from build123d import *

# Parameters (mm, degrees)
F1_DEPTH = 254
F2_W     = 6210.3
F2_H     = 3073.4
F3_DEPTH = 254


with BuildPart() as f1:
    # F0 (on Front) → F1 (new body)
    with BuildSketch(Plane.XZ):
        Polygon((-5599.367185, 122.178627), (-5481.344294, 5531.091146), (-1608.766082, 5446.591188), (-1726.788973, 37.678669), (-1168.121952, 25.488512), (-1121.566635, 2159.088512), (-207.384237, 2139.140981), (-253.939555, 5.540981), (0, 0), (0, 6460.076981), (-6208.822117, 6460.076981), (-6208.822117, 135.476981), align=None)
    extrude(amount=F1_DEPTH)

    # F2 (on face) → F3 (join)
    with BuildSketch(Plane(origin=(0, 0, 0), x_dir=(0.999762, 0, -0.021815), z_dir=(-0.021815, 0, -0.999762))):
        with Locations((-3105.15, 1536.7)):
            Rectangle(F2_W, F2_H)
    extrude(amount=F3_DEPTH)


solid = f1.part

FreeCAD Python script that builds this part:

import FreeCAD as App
import Part
import Sketcher
Q = App.Units.Quantity


def add_polygon(sketch, points):
    """Adds a closed chain of lines whose ends are joined by coincident constraints."""
    first, n = sketch.GeometryCount, len(points)
    for a, b in zip(points, points[1:] + points[:1]):
        sketch.addGeometry(Part.LineSegment(App.Vector(*a, 0), App.Vector(*b, 0)), False)
    for i in range(n):
        sketch.addConstraint(Sketcher.Constraint("Coincident", first + i, 2, first + (i + 1) % n, 1))

doc = App.newDocument("Part")
params = doc.addObject("Spreadsheet::Sheet", "Params")
for row, (alias, value) in enumerate([
    ("sketch1_height", "249 in"),
    ("sketch1_length", "213 in"),
    ("sketch1_length2", "22 in"),
    ("sketch1_length3", "36 in"),
    ("sketch1_length4", "10 in"),
    ("pad1_length", "10 in"),
    ("pad2_length", "10 in"),
], start=1):
    params.set(f"A{row}", alias)
    params.set(f"B{row}", "=" + value)
    params.setAlias(f"B{row}", alias)

body = doc.addObject("PartDesign::Body", "Body")

# Sketch on XZ plane
sketch1 = doc.addObject("Sketcher::SketchObject", "Sketch")
body.addObject(sketch1)
sketch1.AttachmentSupport = (doc.XZ_Plane, [""])
sketch1.MapMode = "FlatFace"
add_polygon(sketch1, [(-5599.367185, 122.178627), (-5481.344294, 5531.091146), (-1608.766082, 5446.591188), (-1726.788973, 37.678669), (-1168.121952, 25.488512), (-1121.566635, 2159.088512), (-207.384237, 2139.140981), (-253.939555, 5.540981), (0, 0), (0, 6460.076981), (-6208.822117, 6460.076981), (-6208.822117, 135.476981)])  # lines 0-11
sketch1.addConstraint(Sketcher.Constraint("Vertical", 8))
sketch1.addConstraint(Sketcher.Constraint("Horizontal", 9))
sketch1.addConstraint(Sketcher.Constraint("Vertical", 10))
sketch1.addConstraint(Sketcher.Constraint("Coincident", 7, 2, -1, 1))
sketch1.addConstraint(Sketcher.Constraint("Perpendicular", 0, 1))
sketch1.addConstraint(Sketcher.Constraint("Perpendicular", 1, 2))
sketch1.addConstraint(Sketcher.Constraint("Perpendicular", 2, 3))
sketch1.addConstraint(Sketcher.Constraint("Perpendicular", 3, 4))
sketch1.addConstraint(Sketcher.Constraint("Perpendicular", 4, 5))
sketch1.addConstraint(Sketcher.Constraint("Perpendicular", 5, 6))
sketch1.addConstraint(Sketcher.Constraint("Perpendicular", 6, 7))
sketch1.addConstraint(Sketcher.Constraint("Parallel", 7, 11))
sketch1.addConstraint(Sketcher.Constraint("Equal", 0, 2))
sketch1.addConstraint(Sketcher.Constraint("Equal", 4, 6))
sketch1.addConstraint(Sketcher.Constraint("DistanceY", 10, 2, 10, 1, Q("249 in")))
sketch1.addConstraint(Sketcher.Constraint("Distance", 0, Q("213 in")))
sketch1.addConstraint(Sketcher.Constraint("Distance", 3, Q("22 in")))
sketch1.addConstraint(Sketcher.Constraint("Distance", 5, Q("36 in")))
sketch1.addConstraint(Sketcher.Constraint("Distance", 7, Q("10 in")))
sketch1.addConstraint(Sketcher.Constraint("Distance", 11, Q("24 in")))
sketch1.addConstraint(Sketcher.Constraint("DistanceY", 3, 2, 4, 2, Q("84 in")))
sketch1.addConstraint(Sketcher.Constraint("Distance", 1, Q("152.5 in")))
sketch1.addConstraint(Sketcher.Constraint("Angle", 0, Q("88.75 deg")))
sketch1.setExpression("Constraints[26]", "Params.sketch1_height")
sketch1.setExpression("Constraints[27]", "Params.sketch1_length")
sketch1.setExpression("Constraints[28]", "Params.sketch1_length2")
sketch1.setExpression("Constraints[29]", "Params.sketch1_length3")
sketch1.setExpression("Constraints[30]", "Params.sketch1_length4")
pad1 = doc.addObject("PartDesign::Pad", "Pad")
body.addObject(pad1)
pad1.Profile = sketch1
pad1.setExpression("Length", "Params.pad1_length")

# Sketch on an angled plane
sketch2 = doc.addObject("Sketcher::SketchObject", "Sketch001")
body.addObject(sketch2)
sketch2.Placement = App.Placement(App.Vector(0, 0, 0), App.Rotation(App.Vector(0.999762025, 0, -0.021815001), App.Vector(0, -1.000000001, 0), App.Vector(-0.021815001, 0, -0.999762025), "ZXY"))
add_polygon(sketch2, [(-6210.300006, 3073.400006), (-6210.300006, 0), (0, 0), (0, 3073.400006)])  # lines 0-3
sketch2.addConstraint(Sketcher.Constraint("Vertical", 0))
sketch2.addConstraint(Sketcher.Constraint("Horizontal", 1))
sketch2.addConstraint(Sketcher.Constraint("Vertical", 2))
sketch2.addConstraint(Sketcher.Constraint("Horizontal", 3))
sketch2.addConstraint(Sketcher.Constraint("Coincident", 1, 2, -1, 1))
sketch2.addConstraint(Sketcher.Constraint("DistanceX", 1, 1, 1, 2, Q("6210.300006 mm")))
sketch2.addConstraint(Sketcher.Constraint("DistanceY", 0, 2, 0, 1, Q("3073.400006 mm")))
pad2 = doc.addObject("PartDesign::Pad", "Pad001")
body.addObject(pad2)
pad2.Profile = sketch2
pad2.setExpression("Length", "Params.pad2_length")

doc.recompute()
